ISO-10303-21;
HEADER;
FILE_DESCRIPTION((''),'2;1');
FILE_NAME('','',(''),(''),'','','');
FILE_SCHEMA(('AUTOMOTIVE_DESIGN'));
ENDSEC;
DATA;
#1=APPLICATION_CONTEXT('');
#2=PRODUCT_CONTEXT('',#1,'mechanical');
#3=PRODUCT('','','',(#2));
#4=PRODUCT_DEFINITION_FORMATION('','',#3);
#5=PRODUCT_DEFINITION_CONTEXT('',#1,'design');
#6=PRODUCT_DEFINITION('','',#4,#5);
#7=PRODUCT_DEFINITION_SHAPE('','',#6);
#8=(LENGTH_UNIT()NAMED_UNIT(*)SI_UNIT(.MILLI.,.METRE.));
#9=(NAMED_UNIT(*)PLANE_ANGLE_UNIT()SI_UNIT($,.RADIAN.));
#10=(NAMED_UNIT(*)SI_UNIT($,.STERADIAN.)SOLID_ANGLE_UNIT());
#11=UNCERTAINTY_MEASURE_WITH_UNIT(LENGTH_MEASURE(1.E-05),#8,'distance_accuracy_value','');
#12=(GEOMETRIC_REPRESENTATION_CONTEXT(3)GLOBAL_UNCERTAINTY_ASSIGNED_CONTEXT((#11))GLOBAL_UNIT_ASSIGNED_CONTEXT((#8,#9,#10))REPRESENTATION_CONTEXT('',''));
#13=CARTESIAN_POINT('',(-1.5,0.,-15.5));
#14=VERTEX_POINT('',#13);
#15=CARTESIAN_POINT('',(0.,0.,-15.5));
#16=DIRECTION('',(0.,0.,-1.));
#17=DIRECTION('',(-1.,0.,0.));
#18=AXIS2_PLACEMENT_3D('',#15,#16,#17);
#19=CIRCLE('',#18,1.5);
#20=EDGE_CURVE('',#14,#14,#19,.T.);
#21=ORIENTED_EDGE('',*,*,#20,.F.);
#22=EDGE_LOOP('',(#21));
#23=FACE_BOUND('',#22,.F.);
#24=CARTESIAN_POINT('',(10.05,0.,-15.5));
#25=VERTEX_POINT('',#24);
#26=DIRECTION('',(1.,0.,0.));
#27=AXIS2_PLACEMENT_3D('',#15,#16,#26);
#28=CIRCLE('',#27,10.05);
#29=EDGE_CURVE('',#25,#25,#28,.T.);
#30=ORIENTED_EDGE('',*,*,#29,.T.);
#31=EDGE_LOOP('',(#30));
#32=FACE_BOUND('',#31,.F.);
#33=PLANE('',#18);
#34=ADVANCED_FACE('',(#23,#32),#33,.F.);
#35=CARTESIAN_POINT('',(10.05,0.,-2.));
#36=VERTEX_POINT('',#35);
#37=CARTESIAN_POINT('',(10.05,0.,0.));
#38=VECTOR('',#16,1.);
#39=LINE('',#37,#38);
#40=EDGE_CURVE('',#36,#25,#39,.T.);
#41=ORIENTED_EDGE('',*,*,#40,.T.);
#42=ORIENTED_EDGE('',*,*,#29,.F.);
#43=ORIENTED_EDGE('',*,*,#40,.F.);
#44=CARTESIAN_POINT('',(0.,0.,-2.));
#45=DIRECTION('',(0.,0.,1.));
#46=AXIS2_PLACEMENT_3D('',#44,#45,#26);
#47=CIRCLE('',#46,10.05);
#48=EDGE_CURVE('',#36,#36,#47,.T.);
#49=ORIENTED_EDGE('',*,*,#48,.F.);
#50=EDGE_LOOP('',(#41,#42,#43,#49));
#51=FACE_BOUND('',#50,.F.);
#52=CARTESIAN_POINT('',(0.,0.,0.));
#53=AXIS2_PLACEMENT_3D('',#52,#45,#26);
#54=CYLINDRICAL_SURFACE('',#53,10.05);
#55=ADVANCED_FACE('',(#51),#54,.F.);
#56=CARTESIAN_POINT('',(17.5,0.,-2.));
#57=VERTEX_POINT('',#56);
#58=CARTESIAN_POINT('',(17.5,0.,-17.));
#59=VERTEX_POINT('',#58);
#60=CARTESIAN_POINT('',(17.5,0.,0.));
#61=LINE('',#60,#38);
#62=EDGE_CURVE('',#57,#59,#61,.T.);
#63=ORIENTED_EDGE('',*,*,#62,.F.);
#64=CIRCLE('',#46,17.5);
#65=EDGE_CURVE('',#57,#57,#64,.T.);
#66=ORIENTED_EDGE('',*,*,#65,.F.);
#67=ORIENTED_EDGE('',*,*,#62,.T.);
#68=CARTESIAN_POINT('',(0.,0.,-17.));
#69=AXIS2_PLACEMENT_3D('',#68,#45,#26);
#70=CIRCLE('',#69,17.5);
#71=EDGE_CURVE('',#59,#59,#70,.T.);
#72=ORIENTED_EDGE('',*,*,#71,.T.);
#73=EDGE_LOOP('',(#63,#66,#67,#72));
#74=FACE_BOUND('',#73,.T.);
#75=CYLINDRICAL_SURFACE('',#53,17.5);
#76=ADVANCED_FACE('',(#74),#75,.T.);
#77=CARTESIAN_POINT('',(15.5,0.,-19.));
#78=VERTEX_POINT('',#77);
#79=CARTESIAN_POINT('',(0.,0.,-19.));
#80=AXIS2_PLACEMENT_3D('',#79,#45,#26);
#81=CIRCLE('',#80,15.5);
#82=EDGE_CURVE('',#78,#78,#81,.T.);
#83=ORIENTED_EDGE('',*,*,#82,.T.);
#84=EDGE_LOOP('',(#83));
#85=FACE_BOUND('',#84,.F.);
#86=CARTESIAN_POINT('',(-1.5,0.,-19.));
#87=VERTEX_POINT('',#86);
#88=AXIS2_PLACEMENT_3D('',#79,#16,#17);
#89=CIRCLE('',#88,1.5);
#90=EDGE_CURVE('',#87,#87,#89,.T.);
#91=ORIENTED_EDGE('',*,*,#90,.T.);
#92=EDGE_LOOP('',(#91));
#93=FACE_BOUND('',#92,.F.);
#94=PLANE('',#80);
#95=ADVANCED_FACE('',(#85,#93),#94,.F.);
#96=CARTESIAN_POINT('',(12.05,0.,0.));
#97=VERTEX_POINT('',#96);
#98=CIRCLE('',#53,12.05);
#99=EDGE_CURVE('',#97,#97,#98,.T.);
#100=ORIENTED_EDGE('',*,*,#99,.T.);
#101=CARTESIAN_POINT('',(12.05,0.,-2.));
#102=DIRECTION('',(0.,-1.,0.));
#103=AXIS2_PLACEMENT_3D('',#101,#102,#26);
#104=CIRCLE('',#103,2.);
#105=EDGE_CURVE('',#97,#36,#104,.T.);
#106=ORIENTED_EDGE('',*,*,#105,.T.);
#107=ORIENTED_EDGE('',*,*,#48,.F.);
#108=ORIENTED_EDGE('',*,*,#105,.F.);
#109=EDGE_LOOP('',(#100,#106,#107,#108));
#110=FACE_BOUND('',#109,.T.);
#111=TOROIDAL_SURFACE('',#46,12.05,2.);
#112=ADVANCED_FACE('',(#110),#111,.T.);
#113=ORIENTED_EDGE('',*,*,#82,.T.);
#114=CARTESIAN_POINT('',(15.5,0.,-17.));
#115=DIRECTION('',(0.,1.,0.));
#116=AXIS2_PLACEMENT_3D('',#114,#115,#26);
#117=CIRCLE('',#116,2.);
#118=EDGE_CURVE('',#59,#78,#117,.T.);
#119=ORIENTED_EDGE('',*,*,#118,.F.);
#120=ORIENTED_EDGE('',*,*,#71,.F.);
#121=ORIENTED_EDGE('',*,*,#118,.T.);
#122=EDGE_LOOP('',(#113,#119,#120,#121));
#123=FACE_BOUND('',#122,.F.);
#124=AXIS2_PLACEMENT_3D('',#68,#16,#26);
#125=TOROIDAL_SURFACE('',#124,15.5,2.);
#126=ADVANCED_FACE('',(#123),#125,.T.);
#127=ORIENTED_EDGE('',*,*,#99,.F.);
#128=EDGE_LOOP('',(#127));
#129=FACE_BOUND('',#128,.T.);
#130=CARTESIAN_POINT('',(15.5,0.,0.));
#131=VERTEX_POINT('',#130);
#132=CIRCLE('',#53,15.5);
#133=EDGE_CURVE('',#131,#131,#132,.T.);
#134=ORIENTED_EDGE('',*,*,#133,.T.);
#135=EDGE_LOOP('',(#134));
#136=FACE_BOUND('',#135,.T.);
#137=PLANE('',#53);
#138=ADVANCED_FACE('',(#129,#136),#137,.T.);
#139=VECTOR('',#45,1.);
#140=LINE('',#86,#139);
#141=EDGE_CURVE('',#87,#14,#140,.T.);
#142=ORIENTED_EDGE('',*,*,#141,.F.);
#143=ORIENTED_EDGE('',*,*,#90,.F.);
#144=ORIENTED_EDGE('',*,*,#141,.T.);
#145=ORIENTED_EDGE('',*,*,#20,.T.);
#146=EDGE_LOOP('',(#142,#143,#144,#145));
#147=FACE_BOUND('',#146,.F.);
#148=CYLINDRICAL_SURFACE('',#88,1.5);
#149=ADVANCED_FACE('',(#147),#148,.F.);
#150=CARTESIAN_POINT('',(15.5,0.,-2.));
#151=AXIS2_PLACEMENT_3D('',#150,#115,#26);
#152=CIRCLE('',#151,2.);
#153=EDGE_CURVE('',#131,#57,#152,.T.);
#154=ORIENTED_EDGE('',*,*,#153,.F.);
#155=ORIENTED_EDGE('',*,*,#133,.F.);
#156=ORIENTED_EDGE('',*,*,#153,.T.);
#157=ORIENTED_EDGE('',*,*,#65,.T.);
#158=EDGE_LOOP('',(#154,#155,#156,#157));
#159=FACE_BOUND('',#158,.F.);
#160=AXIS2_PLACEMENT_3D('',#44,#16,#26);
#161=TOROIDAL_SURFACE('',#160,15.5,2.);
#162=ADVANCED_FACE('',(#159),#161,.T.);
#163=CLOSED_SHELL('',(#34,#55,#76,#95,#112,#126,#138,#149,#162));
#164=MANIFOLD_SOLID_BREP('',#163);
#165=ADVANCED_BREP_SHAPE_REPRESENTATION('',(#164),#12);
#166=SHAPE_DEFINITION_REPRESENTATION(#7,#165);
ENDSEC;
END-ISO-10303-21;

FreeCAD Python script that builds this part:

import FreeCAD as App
import Part
import Sketcher
Q = App.Units.Quantity


def edges_at(feature, points):
    """Names of the edges that pass closest to the given points."""
    edges = feature.Shape.Edges
    near = lambda p: min(range(len(edges)), key=lambda i: edges[i].distToShape(Part.Vertex(*p))[0])
    return sorted({f"Edge{near(p) + 1}" for p in points})

doc = App.newDocument("Part")
body = doc.addObject("PartDesign::Body", "Body")

# Sketch on XY plane
sketch1 = doc.addObject("Sketcher::SketchObject", "Sketch")
body.addObject(sketch1)
sketch1.AttachmentSupport = (doc.XY_Plane, [""])
sketch1.MapMode = "FlatFace"
sketch1.addGeometry([
    Part.Circle(App.Vector(0, 0, 0), App.Vector(0, 0, 1), 17.5),
    Part.Circle(App.Vector(0, 0, 0), App.Vector(0, 0, 1), 10.05),
], False)
sketch1.addConstraint([
    Sketcher.Constraint("Coincident", 0, 3, -1, 1),
    Sketcher.Constraint("Coincident", 1, 3, -1, 1),
    Sketcher.Constraint("Diameter", 0, Q("35 mm")),
    Sketcher.Constraint("Diameter", 1, Q("20.1 mm")),
])
pad1 = doc.addObject("PartDesign::Pad", "Pad")
body.addObject(pad1)
pad1.Profile = sketch1
pad1.Length = 19
pad1.Reversed = True

# Sketch on XY plane
sketch2 = doc.addObject("Sketcher::SketchObject", "Sketch001")
body.addObject(sketch2)
sketch2.AttachmentSupport = (doc.XY_Plane, [""])
sketch2.MapMode = "FlatFace"
sketch2.AttachmentOffset = App.Placement(App.Vector(0, 0, -19), App.Rotation())
sketch2.addGeometry(Part.Circle(App.Vector(0, 0, 0), App.Vector(0, 0, 1), 10.05), False)
sketch2.addConstraint([
    Sketcher.Constraint("Coincident", 0, 3, -1, 1),
    Sketcher.Constraint("Diameter", 0, Q("20.1 mm")),
])
pad2 = doc.addObject("PartDesign::Pad", "Pad001")
body.addObject(pad2)
pad2.Profile = sketch2
pad2.Length = 3.5

# Sketch on XY plane
sketch3 = doc.addObject("Sketcher::SketchObject", "Sketch002")
body.addObject(sketch3)
sketch3.AttachmentSupport = (doc.XY_Plane, [""])
sketch3.MapMode = "FlatFace"
sketch3.AttachmentOffset = App.Placement(App.Vector(0, 0, -19), App.Rotation())
sketch3.addGeometry(Part.Circle(App.Vector(0, 0, 0), App.Vector(0, 0, 1), 1.5), False)
sketch3.addConstraint([
    Sketcher.Constraint("Coincident", 0, 3, -1, 1),
    Sketcher.Constraint("Diameter", 0, Q("3 mm")),
])
pocket1 = doc.addObject("PartDesign::Pocket", "Pocket")
body.addObject(pocket1)
pocket1.Profile = sketch3
pocket1.Length = 3.5
pocket1.Reversed = True
doc.recompute()

fillet = doc.addObject("PartDesign::Fillet", "Fillet")
body.addObject(fillet)
fillet.Base = (pocket1, edges_at(pocket1, [(-10.05, 0, 0)]))
fillet.Radius = 2
doc.recompute()

fillet2 = doc.addObject("PartDesign::Fillet", "Fillet001")
body.addObject(fillet2)
fillet2.Base = (fillet, edges_at(fillet, [(-17.5, 0, 0), (-17.5, 0, -19)]))
fillet2.Radius = 2

doc.recompute()
